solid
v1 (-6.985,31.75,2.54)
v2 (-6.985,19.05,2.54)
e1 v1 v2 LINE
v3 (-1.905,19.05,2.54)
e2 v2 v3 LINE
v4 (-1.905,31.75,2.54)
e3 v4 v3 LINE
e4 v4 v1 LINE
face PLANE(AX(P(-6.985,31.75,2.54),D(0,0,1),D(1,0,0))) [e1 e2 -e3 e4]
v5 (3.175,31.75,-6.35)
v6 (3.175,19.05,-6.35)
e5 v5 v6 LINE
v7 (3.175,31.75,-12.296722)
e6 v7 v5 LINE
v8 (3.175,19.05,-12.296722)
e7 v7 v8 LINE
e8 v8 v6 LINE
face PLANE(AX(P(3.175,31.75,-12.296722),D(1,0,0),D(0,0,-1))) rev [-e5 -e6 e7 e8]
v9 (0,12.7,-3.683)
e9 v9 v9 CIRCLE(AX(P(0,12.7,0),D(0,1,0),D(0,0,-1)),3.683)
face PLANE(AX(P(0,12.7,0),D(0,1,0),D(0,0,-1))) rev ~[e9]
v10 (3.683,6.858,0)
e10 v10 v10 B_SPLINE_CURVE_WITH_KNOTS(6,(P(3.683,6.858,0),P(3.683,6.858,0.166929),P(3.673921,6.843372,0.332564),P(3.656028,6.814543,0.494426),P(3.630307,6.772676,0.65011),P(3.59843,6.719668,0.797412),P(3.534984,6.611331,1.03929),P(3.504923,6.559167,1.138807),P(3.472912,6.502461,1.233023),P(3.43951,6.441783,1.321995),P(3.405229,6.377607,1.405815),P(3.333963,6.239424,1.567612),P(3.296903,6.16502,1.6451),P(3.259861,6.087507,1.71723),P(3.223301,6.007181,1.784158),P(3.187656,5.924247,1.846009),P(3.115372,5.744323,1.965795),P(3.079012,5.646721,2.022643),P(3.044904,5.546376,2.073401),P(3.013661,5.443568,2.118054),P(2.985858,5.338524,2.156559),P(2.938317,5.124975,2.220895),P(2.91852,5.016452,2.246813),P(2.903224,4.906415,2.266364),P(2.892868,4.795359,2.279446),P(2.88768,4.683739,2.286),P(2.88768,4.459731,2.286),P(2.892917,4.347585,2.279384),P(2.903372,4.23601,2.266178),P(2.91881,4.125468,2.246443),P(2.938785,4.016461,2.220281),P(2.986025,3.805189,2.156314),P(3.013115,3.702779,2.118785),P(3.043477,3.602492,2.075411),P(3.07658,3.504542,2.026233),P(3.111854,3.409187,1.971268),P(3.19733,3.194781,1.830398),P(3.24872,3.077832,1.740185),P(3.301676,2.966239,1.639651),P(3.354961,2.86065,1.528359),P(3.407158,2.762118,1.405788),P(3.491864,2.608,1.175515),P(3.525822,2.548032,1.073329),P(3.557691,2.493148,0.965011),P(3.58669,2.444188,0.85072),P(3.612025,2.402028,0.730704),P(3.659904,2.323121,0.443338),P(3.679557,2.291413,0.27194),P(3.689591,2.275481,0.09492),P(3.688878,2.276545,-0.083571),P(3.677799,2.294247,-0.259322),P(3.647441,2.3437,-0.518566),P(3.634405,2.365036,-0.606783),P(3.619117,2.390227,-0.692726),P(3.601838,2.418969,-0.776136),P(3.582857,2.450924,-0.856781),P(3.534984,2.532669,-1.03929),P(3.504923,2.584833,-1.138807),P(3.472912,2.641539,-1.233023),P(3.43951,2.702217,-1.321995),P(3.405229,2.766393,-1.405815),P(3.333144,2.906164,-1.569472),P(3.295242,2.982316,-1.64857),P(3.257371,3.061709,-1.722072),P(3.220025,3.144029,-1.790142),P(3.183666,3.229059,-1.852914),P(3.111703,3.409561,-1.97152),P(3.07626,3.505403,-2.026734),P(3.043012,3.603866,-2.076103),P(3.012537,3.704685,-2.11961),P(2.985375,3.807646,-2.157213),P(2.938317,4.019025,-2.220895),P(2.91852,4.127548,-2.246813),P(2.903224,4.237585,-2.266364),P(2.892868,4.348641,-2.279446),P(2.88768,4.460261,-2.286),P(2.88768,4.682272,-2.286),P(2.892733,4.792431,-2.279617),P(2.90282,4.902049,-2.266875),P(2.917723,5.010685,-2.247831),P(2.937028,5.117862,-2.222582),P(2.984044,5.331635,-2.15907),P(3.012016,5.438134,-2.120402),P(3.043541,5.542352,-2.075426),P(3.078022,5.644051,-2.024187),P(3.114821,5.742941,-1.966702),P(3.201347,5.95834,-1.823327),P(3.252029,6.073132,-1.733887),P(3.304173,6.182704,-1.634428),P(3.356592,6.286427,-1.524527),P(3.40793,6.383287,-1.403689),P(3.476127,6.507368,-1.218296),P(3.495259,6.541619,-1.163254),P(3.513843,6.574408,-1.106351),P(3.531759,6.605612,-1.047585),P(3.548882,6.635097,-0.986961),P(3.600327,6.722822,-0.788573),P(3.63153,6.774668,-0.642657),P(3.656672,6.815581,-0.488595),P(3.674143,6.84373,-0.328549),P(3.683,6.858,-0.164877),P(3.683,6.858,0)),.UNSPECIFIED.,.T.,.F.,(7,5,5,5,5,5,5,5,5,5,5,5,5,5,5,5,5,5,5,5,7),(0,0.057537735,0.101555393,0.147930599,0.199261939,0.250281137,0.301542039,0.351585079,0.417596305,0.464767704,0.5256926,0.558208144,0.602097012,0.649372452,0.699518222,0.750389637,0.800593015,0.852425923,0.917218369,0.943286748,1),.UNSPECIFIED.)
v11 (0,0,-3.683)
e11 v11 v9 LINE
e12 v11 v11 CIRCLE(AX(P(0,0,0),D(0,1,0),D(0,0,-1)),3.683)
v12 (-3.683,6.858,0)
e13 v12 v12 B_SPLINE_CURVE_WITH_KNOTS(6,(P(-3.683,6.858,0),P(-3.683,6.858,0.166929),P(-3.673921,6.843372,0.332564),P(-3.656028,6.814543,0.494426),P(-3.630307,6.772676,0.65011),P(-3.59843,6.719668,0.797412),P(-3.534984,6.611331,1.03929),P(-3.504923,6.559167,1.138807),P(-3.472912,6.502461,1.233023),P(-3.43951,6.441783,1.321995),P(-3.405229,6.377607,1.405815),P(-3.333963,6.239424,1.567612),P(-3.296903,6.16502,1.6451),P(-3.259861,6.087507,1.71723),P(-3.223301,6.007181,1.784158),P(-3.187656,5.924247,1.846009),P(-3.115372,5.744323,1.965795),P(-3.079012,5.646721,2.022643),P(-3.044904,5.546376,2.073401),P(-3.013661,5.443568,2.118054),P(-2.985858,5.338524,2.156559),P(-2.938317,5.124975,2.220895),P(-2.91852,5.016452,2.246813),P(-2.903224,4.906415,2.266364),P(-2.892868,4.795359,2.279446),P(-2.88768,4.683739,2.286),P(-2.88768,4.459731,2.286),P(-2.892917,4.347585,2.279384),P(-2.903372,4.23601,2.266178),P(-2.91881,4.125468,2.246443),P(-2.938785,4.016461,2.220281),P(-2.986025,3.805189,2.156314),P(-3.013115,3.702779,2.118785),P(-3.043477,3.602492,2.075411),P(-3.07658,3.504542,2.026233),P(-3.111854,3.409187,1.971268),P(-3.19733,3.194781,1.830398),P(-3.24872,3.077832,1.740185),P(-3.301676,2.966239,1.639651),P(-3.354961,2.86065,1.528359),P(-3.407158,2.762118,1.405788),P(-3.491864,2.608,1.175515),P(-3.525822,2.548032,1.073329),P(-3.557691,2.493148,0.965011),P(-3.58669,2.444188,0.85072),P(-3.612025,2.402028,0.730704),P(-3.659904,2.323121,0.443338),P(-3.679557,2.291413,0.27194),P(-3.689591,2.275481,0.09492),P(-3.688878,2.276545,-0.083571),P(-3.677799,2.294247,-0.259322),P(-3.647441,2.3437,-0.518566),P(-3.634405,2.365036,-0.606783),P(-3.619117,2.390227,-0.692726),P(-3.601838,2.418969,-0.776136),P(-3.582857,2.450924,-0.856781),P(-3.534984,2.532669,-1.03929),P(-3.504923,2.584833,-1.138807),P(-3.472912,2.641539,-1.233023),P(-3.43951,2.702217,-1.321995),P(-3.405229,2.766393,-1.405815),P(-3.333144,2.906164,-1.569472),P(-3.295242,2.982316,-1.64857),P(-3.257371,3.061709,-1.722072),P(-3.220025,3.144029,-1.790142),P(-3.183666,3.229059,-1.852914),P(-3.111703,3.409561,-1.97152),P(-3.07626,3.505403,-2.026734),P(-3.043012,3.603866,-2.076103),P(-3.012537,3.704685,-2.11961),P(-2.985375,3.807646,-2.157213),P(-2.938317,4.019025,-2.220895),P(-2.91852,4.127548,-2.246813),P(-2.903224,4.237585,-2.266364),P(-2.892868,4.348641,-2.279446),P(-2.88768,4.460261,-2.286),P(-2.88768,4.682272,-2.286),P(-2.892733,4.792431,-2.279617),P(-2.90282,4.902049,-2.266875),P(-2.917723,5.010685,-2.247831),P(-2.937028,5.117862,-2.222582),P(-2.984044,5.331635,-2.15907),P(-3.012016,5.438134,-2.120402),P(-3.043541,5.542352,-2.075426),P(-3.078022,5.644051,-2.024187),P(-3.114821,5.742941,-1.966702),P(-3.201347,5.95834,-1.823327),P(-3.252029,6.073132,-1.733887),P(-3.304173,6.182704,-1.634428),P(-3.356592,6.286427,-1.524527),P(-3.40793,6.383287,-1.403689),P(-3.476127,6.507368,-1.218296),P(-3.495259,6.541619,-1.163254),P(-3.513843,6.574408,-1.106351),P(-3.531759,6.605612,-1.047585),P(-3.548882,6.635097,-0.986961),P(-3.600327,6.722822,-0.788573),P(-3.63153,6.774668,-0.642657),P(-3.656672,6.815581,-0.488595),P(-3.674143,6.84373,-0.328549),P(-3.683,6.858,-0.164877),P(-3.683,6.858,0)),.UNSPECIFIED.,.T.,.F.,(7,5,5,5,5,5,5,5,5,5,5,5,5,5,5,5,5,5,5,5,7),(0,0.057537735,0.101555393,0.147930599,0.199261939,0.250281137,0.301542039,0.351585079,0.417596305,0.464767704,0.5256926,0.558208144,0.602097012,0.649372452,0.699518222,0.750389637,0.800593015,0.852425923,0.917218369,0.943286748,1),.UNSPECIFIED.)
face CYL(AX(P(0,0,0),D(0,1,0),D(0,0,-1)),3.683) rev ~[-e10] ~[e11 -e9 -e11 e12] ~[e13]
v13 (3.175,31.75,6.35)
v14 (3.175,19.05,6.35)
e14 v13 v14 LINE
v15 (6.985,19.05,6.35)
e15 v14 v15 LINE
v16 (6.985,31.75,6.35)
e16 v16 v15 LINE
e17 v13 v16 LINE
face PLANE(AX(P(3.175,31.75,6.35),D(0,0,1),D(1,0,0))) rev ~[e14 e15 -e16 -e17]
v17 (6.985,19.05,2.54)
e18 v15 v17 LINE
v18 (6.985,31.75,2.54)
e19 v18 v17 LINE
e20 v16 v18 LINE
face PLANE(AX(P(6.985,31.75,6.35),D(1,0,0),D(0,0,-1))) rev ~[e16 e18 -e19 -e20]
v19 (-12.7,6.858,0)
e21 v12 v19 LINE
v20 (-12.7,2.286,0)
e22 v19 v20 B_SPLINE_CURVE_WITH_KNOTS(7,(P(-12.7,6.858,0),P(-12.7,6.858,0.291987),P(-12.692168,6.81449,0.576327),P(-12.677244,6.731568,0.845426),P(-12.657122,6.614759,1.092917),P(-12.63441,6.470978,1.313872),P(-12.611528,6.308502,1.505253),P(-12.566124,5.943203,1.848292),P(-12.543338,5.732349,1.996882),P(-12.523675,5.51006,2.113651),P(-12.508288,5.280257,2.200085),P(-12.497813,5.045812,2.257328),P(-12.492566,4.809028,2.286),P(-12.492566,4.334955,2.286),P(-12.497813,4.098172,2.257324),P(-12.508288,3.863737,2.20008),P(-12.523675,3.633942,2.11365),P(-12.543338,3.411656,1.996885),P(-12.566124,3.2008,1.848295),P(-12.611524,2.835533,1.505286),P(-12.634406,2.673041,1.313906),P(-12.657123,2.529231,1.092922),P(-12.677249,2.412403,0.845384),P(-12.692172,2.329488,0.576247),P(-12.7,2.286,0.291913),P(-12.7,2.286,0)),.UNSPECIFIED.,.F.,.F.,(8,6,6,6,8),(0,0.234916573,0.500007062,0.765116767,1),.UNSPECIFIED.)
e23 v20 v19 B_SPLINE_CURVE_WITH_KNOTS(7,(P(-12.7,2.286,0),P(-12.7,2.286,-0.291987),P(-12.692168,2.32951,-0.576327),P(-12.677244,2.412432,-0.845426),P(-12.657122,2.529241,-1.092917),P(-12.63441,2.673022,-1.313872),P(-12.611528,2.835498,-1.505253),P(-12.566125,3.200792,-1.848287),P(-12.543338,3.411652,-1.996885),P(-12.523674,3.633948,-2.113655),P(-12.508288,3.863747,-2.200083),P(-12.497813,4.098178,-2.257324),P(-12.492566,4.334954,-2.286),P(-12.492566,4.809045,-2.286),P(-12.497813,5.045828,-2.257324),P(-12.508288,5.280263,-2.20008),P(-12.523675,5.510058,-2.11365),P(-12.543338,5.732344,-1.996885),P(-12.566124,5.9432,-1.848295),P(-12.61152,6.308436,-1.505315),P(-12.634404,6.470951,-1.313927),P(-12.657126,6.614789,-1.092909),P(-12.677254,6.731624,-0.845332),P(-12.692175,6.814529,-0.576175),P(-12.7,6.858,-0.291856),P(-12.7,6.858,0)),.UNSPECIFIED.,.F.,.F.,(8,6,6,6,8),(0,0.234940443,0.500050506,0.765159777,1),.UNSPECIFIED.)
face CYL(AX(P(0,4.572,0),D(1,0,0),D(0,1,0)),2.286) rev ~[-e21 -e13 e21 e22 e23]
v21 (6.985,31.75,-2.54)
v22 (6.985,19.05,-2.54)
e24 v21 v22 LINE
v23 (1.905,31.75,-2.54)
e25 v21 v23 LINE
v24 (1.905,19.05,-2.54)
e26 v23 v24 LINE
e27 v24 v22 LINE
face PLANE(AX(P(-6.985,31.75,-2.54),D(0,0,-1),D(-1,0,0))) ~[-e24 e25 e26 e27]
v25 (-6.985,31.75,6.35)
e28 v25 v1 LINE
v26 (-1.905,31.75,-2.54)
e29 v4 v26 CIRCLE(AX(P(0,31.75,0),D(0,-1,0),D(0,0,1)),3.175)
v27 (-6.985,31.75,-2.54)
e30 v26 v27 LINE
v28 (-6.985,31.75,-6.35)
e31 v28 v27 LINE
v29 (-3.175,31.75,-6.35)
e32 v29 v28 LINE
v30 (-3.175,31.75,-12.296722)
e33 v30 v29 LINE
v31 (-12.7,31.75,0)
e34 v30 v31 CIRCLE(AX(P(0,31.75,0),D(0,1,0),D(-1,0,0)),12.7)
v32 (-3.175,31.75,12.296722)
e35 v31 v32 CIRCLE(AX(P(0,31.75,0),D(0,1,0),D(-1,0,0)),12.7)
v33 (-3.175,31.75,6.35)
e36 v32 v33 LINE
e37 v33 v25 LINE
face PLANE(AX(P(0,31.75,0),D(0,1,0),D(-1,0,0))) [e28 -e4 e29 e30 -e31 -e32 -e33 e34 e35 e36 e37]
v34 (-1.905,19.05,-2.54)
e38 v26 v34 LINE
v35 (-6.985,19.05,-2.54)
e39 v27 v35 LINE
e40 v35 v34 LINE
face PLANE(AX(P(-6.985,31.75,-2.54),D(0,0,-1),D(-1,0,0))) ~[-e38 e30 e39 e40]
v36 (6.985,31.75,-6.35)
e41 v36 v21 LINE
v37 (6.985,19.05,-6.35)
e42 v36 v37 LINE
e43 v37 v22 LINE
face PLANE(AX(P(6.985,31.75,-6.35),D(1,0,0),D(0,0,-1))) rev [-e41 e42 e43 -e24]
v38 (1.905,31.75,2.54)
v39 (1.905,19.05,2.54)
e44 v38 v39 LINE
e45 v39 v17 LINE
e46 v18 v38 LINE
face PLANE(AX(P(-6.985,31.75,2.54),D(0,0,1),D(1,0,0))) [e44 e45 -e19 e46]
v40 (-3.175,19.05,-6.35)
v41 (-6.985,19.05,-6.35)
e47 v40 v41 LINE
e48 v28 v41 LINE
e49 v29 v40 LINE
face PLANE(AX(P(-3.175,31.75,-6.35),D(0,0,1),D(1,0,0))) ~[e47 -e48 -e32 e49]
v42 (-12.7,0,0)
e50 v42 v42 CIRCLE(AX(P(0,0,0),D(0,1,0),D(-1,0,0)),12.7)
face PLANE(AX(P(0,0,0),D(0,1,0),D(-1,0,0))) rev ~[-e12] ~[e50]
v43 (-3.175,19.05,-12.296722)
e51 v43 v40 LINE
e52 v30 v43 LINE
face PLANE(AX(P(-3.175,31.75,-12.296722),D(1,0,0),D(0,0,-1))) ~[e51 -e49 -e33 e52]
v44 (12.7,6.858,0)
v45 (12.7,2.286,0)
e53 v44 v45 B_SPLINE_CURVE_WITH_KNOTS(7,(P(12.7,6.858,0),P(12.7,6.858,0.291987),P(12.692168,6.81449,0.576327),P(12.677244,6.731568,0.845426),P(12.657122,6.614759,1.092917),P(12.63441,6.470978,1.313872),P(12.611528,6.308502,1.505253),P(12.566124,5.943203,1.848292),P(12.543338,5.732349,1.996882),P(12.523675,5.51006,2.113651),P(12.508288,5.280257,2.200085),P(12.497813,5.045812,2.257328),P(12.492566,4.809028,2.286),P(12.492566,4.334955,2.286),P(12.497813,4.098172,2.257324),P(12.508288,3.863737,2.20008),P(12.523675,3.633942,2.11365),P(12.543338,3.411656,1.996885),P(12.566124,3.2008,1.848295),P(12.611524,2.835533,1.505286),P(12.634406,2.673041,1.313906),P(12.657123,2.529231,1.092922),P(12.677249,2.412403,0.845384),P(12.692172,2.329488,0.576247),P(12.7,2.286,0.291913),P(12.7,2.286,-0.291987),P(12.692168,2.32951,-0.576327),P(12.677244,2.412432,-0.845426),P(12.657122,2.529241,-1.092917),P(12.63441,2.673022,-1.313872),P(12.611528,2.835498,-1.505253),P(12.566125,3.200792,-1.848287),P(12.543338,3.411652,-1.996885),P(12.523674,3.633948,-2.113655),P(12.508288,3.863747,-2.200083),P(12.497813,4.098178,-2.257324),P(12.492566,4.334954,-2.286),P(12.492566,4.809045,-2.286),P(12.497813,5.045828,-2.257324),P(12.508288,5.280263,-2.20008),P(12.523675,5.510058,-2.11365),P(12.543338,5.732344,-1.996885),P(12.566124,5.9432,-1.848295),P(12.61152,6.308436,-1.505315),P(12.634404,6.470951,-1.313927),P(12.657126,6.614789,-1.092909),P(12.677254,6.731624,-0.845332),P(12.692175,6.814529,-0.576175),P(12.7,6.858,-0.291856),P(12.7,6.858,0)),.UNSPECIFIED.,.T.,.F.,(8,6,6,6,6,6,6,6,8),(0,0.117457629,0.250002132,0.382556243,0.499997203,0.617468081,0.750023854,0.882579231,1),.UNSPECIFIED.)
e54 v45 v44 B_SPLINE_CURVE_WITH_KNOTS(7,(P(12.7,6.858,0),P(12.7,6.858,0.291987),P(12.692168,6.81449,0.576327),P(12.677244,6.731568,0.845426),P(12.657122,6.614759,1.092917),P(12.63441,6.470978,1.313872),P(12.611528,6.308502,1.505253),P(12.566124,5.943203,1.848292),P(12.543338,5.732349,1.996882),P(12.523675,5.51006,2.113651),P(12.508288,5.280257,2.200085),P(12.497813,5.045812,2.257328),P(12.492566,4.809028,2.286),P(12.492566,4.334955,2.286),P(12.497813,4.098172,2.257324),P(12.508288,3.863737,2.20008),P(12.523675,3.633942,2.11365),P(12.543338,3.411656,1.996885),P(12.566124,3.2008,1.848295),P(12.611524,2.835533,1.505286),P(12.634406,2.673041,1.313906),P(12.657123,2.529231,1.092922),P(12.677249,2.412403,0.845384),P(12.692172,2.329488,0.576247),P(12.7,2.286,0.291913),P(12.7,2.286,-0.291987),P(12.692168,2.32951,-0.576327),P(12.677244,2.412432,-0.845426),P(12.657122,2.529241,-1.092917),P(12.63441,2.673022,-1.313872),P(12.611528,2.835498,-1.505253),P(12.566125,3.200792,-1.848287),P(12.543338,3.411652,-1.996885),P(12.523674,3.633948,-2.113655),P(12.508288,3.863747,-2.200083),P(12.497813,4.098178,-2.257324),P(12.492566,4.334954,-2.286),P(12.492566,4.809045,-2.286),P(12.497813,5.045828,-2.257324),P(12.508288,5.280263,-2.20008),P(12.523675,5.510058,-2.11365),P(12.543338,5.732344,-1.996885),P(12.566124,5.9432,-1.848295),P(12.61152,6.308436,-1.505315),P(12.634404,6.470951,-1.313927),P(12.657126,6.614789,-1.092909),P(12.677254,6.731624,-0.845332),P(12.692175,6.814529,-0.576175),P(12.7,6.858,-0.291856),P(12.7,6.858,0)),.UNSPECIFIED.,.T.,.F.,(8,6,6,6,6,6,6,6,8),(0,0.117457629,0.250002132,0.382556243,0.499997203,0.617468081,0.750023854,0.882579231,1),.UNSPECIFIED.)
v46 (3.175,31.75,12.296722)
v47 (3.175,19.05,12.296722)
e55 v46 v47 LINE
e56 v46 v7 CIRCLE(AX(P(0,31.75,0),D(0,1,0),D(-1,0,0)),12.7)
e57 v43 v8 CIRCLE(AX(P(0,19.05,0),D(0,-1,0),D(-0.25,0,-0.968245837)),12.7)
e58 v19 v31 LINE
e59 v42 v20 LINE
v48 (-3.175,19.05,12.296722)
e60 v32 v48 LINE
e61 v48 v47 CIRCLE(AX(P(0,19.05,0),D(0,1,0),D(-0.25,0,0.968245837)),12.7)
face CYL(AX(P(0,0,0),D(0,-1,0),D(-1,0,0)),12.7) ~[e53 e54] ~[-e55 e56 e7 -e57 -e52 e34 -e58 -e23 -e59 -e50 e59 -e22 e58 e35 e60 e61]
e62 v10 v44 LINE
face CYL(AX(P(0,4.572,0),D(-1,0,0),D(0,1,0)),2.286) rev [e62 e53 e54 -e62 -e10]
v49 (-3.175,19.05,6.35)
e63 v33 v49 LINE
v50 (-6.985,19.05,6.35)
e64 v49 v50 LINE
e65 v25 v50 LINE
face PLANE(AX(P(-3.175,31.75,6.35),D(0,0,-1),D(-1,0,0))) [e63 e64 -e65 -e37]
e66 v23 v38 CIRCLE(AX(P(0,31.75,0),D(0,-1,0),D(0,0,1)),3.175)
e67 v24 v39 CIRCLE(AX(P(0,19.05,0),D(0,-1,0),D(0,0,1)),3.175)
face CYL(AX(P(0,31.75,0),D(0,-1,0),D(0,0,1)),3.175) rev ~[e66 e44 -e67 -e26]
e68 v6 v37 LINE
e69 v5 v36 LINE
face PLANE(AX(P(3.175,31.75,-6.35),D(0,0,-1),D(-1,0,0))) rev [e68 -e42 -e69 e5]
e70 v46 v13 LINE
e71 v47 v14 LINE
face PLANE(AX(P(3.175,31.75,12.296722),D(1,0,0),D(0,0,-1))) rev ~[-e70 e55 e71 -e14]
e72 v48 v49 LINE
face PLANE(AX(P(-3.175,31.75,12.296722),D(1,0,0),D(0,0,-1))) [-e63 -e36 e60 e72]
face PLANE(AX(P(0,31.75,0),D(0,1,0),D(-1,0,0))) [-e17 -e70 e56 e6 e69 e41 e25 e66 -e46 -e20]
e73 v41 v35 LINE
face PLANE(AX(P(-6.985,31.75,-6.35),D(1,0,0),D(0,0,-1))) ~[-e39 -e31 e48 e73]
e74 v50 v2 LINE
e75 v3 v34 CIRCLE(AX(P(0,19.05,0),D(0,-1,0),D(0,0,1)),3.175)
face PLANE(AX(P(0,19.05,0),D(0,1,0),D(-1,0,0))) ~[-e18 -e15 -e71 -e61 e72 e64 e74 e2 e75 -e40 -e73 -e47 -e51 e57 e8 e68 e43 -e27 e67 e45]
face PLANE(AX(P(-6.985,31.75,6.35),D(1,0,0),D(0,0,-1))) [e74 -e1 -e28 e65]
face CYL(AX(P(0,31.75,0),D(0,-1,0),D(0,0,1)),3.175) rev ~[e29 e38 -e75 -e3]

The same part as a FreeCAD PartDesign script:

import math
import FreeCAD as App
import Part
import Sketcher
Q = App.Units.Quantity

doc = App.newDocument("Part")
params = doc.addObject("Spreadsheet::Sheet", "Params")
for row, (alias, value) in enumerate([
    ("sketch1_diameter", "1 in"),
    ("pad1_length", "1.25 in"),
    ("sketch2_width", "0.15 in"),
    ("sketch2_radius", "0.5 in"),
    ("pocket1_length", "0.5 in"),
    ("sketch3_diameter", "0.25 in"),
    ("hole_diameter", "0.25 in"),
    ("hole_depth", "0.5 in"),
    ("sketch4_diameter", "0.29 in"),
    ("hole2_diameter", "0.29 in"),
    ("hole2_depth", "0.5 in"),
    ("sketch5_diameter", "0.18 in"),
    ("pocket2_length", "1 in"),
], start=1):
    params.set(f"A{row}", alias)
    params.set(f"B{row}", "=" + value)
    params.setAlias(f"B{row}", alias)

body = doc.addObject("PartDesign::Body", "Body")

# Sketch on XZ plane
sketch1 = body.newObject("Sketcher::SketchObject", "Sketch")
sketch1.AttachmentSupport = (doc.getObject("XZ_Plane"), [""])
sketch1.MapMode = "FlatFace"
sketch1.addGeometry(Part.Circle(App.Vector(0, 0, 0), App.Vector(0, 0, 1), 13), False)
sketch1.addConstraint([
    Sketcher.Constraint("Coincident", 0, 3, -1, 1),
    Sketcher.Constraint("Diameter", 0, Q("1 in")),
])
sketch1.setExpression("Constraints[1]", "Params.sketch1_diameter")
pad1 = body.newObject("PartDesign::Pad", "Pad")
pad1.Profile = sketch1
pad1.setExpression("Length", "Params.pad1_length")
pad1.Reversed = True

# Sketch on XZ plane
sketch2 = body.newObject("Sketcher::SketchObject", "Sketch001")
sketch2.AttachmentSupport = (doc.getObject("XZ_Plane"), [""])
sketch2.MapMode = "FlatFace"
sketch2.AttachmentOffset = App.Placement(App.Vector(0, 0, -1.25 * 25.4), App.Rotation())
sketch2.addGeometry([
    Part.LineSegment(App.Vector(-3.2, 6.3, 0), App.Vector(-3.2, 12.3, 0)),  # 0
    Part.ArcOfCircle(Part.Circle(App.Vector(0, 0, 0), App.Vector(0, 0, 1), 12.7), math.radians(76), math.radians(104)),  # 1
    Part.LineSegment(App.Vector(3.2, 12.3, 0), App.Vector(3.2, 6.3, 0)),  # 2
    Part.LineSegment(App.Vector(3.2, 6.3, 0), App.Vector(7, 6.3, 0)),  # 3
    Part.LineSegment(App.Vector(7, 6.3, 0), App.Vector(7, 2.5, 0)),  # 4
    Part.LineSegment(App.Vector(7, 2.5, 0), App.Vector(-7, 2.5, 0)),  # 5
    Part.LineSegment(App.Vector(-7, 2.5, 0), App.Vector(-7, 6.3, 0)),  # 6
    Part.LineSegment(App.Vector(-7, 6.3, 0), App.Vector(-3.2, 6.3, 0)),  # 7
], False)
sketch2.addConstraint([
    Sketcher.Constraint("Coincident", 0, 2, 1, 2),
    Sketcher.Constraint("Coincident", 1, 1, 2, 1),
    Sketcher.Constraint("Coincident", 2, 2, 3, 1),
    Sketcher.Constraint("Coincident", 3, 2, 4, 1),
    Sketcher.Constraint("Coincident", 4, 2, 5, 1),
    Sketcher.Constraint("Coincident", 5, 2, 6, 1),
    Sketcher.Constraint("Coincident", 6, 2, 7, 1),
    Sketcher.Constraint("Coincident", 7, 2, 0, 1),
    Sketcher.Constraint("Vertical", 0),
    Sketcher.Constraint("Vertical", 2),
    Sketcher.Constraint("Horizontal", 3),
    Sketcher.Constraint("Vertical", 4),
    Sketcher.Constraint("Horizontal", 5),
    Sketcher.Constraint("Vertical", 6),
    Sketcher.Constraint("Horizontal", 7),
    Sketcher.Constraint("Coincident", 1, 3, -1, 1),
    Sketcher.Constraint("Symmetric", 3, 2, 6, 2, -2),
    Sketcher.Constraint("Horizontal", 0, 2, 1, 1),
    Sketcher.Constraint("Equal", 7, 4),
    Sketcher.Constraint("DistanceX", 3, 1, 3, 2, Q("0.15 in")),
    Sketcher.Constraint("Radius", 1, Q("0.5 in")),
    Sketcher.Constraint("DistanceY", -1, 1, 2, 2, Q("0.25 in")),
    Sketcher.Constraint("DistanceX", 0, 2, 1, 1, Q("0.25 in")),
])
sketch2.setExpression("Constraints[19]", "Params.sketch2_width")
sketch2.setExpression("Constraints[20]", "Params.sketch2_radius")
pocket1 = body.newObject("PartDesign::Pocket", "Pocket")
pocket1.Profile = sketch2
pocket1.setExpression("Length", "Params.pocket1_length")
pocket1.Reversed = True
doc.recompute()

mirrored = body.newObject("PartDesign::Mirrored", "Mirrored")
mirrored.Originals = [pocket1]
mirrored.MirrorPlane = (doc.getObject("XY_Plane"), [""])
body.Tip = mirrored

# Sketch on XZ plane
sketch3 = body.newObject("Sketcher::SketchObject", "Sketch002")
sketch3.AttachmentSupport = (doc.getObject("XZ_Plane"), [""])
sketch3.MapMode = "FlatFace"
sketch3.AttachmentOffset = App.Placement(App.Vector(0, 0, -1.25 * 25.4), App.Rotation())
sketch3.addGeometry(Part.Circle(App.Vector(0, 0, 0), App.Vector(0, 0, 1), 3.2), False)
sketch3.addConstraint([
    Sketcher.Constraint("Coincident", 0, 3, -1, 1),
    Sketcher.Constraint("Diameter", 0, Q("0.25 in")),
])
sketch3.setExpression("Constraints[1]", "Params.sketch3_diameter")
doc.recompute()
hole = body.newObject("PartDesign::Hole", "Hole")
hole.Profile = sketch3
hole.ThreadType = "None"
hole.setExpression("Diameter", "Params.hole_diameter")
hole.DepthType = "Dimension"
hole.setExpression("Depth", "Params.hole_depth")
hole.DrillPoint = "Flat"
hole.Reversed = True

# Sketch on XZ plane
sketch4 = body.newObject("Sketcher::SketchObject", "Sketch003")
sketch4.AttachmentSupport = (doc.getObject("XZ_Plane"), [""])
sketch4.MapMode = "FlatFace"
sketch4.addGeometry(Part.Circle(App.Vector(0, 0, 0), App.Vector(0, 0, 1), 3.7), False)
sketch4.addConstraint([
    Sketcher.Constraint("Coincident", 0, 3, -1, 1),
    Sketcher.Constraint("Diameter", 0, Q("0.29 in")),
])
sketch4.setExpression("Constraints[1]", "Params.sketch4_diameter")
doc.recompute()
hole2 = body.newObject("PartDesign::Hole", "Hole001")
hole2.Profile = sketch4
hole2.ThreadType = "None"
hole2.setExpression("Diameter", "Params.hole2_diameter")
hole2.DepthType = "Dimension"
hole2.setExpression("Depth", "Params.hole2_depth")
hole2.DrillPoint = "Flat"

# Sketch on YZ plane
sketch5 = body.newObject("Sketcher::SketchObject", "Sketch004")
sketch5.AttachmentSupport = (doc.getObject("YZ_Plane"), [""])
sketch5.MapMode = "FlatFace"
sketch5.addGeometry(Part.Circle(App.Vector(4.6, 0, 0), App.Vector(0, 0, 1), 2.3), False)
sketch5.addConstraint([
    Sketcher.Constraint("PointOnObject", 0, 3, -1),
    Sketcher.Constraint("Diameter", 0, Q("0.18 in")),
    Sketcher.Constraint("DistanceX", -1, 1, 0, 3, Q("0.18 in")),
])
sketch5.setExpression("Constraints[1]", "Params.sketch5_diameter")
pocket2 = body.newObject("PartDesign::Pocket", "Pocket001")
pocket2.Profile = sketch5
pocket2.setExpression("Length", "Params.pocket2_length")
pocket2.Midplane = True

doc.recompute()
